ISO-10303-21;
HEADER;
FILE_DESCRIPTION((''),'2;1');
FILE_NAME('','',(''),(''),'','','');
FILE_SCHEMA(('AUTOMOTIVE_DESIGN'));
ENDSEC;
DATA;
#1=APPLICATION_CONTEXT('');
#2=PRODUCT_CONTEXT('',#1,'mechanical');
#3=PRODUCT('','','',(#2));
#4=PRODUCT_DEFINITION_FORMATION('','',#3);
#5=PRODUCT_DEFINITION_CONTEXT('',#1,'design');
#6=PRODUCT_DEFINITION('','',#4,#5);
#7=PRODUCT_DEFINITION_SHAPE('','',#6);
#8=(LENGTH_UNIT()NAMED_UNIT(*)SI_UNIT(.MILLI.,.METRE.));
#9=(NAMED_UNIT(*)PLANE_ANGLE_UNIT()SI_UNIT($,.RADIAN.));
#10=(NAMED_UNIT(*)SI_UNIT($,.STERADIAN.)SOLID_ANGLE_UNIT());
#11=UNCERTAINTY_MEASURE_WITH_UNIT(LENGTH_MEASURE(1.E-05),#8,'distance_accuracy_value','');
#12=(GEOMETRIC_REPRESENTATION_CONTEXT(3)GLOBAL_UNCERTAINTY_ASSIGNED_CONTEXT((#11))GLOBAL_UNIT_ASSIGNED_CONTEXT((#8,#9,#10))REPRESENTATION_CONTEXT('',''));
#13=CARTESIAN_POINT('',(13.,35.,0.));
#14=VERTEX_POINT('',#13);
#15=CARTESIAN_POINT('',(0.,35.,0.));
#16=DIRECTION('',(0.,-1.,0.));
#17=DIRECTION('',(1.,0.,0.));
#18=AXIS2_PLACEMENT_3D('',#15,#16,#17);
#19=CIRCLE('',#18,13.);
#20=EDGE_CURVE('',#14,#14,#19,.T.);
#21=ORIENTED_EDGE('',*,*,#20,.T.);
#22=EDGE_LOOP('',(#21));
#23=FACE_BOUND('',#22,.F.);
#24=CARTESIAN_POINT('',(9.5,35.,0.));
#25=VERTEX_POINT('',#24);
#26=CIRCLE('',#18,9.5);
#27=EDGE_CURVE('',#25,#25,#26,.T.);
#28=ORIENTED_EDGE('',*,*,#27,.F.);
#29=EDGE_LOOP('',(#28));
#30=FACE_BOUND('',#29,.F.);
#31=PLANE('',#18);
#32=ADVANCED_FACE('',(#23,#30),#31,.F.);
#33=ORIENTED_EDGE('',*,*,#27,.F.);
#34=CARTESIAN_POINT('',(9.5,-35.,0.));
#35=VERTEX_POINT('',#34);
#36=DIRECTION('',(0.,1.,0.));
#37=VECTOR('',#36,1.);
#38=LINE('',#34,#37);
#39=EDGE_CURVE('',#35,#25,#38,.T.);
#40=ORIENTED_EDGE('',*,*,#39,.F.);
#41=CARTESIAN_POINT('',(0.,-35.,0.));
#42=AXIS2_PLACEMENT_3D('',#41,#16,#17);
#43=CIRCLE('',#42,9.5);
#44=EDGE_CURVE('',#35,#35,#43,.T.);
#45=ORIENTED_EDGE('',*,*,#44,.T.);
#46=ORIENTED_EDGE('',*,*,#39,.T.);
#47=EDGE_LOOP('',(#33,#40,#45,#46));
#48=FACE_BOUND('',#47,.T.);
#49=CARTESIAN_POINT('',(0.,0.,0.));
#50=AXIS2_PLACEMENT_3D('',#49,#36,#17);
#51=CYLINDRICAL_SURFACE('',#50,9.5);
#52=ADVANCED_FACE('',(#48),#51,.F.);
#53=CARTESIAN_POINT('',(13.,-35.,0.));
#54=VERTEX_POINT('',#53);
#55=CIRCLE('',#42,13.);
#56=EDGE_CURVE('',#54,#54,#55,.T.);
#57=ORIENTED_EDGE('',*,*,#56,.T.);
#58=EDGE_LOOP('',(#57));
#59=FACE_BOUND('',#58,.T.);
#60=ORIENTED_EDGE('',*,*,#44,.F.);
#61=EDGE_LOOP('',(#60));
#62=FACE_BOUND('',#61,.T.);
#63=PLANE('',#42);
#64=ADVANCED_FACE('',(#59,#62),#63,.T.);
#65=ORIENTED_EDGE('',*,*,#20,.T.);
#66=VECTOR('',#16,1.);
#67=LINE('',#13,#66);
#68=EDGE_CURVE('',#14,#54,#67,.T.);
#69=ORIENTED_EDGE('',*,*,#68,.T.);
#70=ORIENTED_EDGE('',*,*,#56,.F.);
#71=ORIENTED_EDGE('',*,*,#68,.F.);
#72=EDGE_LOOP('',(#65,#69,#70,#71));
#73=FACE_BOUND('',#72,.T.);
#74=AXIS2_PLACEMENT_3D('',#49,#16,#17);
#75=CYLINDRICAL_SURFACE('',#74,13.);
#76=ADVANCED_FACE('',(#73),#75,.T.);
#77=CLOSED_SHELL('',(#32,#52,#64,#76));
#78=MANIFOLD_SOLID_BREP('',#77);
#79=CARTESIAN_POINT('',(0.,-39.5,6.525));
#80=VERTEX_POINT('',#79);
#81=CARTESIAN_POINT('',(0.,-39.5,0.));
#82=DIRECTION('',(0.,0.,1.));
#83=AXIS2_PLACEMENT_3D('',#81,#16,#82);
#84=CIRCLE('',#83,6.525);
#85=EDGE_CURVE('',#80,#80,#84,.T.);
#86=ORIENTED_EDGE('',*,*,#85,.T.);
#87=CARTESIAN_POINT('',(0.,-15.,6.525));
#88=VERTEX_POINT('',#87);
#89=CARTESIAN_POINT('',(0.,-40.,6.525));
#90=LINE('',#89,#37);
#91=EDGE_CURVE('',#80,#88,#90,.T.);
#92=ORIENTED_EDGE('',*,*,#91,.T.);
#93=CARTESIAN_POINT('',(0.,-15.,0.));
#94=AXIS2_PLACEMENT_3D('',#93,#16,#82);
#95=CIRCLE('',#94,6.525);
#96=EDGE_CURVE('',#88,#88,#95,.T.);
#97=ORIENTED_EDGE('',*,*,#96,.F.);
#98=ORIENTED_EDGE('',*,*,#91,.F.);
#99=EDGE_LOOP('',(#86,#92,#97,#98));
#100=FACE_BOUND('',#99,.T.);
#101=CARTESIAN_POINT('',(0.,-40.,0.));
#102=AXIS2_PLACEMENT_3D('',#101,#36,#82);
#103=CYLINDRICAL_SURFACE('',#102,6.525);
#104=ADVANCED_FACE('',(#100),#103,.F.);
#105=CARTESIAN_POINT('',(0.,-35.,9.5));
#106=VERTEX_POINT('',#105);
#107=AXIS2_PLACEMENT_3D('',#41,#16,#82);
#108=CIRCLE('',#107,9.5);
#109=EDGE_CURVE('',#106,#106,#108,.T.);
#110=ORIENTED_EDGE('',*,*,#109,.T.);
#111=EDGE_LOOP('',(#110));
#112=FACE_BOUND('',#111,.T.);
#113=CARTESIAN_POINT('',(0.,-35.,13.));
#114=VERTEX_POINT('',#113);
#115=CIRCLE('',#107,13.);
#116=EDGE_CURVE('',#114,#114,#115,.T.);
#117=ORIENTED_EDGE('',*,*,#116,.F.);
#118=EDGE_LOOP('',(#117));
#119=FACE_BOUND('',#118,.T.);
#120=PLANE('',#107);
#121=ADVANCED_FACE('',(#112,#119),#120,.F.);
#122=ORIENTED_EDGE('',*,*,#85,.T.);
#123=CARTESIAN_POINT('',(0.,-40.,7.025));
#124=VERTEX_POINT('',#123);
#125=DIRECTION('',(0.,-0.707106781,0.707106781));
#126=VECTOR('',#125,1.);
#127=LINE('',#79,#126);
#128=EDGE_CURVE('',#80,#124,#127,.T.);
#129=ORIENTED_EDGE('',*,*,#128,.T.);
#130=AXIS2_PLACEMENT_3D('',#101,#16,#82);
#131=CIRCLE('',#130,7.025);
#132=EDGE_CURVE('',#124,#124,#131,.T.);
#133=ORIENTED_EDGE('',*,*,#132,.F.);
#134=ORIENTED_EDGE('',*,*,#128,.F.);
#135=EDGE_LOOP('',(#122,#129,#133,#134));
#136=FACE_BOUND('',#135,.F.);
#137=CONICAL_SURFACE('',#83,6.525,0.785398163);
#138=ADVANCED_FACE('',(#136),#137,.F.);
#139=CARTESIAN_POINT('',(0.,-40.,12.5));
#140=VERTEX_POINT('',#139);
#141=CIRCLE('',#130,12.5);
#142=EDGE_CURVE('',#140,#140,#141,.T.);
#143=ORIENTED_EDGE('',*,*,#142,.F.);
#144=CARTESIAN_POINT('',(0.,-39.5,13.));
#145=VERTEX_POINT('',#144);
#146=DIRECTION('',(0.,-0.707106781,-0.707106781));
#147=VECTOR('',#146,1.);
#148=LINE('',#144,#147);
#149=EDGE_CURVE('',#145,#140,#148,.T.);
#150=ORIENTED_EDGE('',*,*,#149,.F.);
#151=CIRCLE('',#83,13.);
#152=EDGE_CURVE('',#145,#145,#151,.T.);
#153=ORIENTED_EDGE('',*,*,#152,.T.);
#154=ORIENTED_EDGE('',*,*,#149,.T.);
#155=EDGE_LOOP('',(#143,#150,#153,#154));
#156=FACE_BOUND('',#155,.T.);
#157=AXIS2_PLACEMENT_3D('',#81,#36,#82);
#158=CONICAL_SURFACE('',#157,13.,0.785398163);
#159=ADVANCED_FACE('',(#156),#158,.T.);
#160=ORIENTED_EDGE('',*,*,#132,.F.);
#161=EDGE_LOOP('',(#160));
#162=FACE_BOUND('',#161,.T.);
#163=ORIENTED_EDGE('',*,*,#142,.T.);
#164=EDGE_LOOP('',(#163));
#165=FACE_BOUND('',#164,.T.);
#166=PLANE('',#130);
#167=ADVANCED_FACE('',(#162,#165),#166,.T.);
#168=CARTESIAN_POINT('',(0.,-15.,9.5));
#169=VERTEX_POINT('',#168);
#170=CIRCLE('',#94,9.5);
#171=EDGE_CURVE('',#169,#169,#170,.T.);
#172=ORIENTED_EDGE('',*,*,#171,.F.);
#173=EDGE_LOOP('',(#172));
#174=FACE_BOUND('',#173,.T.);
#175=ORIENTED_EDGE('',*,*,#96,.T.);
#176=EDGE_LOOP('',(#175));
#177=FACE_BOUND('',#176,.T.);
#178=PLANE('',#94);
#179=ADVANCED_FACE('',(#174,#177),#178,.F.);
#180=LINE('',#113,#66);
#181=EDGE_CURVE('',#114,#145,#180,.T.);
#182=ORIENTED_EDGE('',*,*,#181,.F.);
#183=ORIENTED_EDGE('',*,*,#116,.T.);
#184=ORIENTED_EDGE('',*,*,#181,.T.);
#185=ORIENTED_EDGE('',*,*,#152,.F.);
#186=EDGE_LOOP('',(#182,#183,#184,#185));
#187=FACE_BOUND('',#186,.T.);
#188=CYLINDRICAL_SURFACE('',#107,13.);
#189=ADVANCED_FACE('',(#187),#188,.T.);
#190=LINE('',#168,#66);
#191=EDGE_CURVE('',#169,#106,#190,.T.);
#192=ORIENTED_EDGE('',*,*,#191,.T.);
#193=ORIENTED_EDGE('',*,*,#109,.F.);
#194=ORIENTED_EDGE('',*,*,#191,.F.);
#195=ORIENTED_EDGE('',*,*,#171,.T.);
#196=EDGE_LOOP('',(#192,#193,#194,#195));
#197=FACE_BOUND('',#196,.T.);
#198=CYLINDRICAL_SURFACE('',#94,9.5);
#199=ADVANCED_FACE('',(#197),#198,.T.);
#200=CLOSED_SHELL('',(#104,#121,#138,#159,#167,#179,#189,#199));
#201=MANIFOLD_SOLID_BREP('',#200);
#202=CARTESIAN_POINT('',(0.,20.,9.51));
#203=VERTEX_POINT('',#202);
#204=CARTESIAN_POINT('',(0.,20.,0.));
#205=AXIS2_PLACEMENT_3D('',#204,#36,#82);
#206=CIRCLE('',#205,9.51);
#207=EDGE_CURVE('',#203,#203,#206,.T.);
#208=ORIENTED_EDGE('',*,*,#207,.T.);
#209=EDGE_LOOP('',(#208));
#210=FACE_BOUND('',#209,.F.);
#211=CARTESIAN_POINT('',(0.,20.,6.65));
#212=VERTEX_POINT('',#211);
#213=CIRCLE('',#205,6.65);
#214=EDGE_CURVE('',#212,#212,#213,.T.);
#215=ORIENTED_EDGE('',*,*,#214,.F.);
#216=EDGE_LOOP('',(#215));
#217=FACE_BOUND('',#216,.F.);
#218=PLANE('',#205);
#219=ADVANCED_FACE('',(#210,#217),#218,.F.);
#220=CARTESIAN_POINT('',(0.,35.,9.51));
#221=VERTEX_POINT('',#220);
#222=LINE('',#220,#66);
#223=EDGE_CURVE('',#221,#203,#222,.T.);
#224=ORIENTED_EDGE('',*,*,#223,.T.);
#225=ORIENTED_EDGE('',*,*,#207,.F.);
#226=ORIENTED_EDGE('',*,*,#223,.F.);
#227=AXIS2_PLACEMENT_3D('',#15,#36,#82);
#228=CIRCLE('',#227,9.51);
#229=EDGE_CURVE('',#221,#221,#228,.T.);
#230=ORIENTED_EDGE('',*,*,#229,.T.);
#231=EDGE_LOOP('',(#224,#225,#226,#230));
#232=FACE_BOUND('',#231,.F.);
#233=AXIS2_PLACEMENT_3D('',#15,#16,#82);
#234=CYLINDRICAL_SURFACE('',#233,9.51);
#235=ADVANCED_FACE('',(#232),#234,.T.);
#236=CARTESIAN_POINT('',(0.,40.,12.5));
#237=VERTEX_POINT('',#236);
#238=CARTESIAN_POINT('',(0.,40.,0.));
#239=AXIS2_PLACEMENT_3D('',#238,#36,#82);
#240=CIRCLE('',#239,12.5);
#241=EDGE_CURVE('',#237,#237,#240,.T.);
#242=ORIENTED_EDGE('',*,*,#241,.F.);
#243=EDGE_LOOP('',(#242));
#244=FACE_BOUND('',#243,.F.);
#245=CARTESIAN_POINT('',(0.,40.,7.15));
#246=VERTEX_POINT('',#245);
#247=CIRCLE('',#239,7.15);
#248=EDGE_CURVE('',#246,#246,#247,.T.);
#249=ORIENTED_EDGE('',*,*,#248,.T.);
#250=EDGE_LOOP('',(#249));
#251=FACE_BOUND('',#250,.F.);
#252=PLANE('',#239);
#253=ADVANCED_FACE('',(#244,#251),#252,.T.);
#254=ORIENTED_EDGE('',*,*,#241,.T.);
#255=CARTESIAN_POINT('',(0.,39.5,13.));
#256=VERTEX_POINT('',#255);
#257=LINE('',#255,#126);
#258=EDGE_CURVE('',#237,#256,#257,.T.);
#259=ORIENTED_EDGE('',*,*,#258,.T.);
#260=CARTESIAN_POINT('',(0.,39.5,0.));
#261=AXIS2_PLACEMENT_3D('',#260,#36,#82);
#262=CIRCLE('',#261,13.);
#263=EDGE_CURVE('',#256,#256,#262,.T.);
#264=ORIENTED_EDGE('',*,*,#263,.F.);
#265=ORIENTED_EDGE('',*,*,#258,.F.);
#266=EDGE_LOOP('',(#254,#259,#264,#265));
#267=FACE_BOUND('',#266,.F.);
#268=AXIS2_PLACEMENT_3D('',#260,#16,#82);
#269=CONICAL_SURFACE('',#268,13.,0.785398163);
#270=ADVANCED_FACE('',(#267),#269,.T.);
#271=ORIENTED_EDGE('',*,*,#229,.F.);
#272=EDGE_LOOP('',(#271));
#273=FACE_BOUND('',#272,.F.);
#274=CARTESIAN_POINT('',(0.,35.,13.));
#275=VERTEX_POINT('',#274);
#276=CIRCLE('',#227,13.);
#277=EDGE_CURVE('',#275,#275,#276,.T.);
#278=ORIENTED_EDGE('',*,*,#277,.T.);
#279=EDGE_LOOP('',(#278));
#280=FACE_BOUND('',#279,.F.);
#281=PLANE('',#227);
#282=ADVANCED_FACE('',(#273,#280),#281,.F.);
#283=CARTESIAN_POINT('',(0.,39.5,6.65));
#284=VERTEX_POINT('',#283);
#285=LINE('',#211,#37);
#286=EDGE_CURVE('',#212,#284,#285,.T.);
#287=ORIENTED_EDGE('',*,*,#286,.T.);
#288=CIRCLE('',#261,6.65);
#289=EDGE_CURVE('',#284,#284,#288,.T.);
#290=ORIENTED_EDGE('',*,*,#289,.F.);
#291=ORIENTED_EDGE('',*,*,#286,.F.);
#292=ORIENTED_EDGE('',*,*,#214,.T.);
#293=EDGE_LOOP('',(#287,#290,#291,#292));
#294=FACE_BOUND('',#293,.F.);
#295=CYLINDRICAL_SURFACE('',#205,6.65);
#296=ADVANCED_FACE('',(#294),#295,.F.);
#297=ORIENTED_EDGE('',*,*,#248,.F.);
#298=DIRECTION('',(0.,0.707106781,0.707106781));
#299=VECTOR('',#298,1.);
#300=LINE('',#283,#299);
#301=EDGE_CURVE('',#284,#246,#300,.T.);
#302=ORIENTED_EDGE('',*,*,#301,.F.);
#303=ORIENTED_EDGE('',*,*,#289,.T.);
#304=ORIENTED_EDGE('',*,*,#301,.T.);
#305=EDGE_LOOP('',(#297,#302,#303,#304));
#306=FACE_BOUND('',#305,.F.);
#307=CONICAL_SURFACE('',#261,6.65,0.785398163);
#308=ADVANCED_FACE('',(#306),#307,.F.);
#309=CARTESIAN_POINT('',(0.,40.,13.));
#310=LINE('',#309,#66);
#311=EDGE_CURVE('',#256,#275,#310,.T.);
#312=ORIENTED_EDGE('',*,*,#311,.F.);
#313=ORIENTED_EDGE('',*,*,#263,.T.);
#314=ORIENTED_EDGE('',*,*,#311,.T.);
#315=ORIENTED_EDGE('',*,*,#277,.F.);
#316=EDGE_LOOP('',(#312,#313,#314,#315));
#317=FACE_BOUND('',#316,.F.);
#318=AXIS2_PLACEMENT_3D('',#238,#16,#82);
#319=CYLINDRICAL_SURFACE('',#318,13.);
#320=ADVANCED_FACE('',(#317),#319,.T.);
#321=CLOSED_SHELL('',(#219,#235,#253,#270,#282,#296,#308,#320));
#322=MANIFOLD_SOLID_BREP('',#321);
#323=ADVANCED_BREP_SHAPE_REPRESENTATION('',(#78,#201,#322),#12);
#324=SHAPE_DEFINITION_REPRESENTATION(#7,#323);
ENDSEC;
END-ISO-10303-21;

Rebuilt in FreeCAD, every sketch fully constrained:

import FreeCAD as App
import Part
import Sketcher
from FreeCAD import Vector
Q = App.Units.Quantity


def edges_at(feature, points):
    """Names of the edges that pass closest to the given points."""
    edges = feature.Shape.Edges
    near = lambda p: min(range(len(edges)), key=lambda i: edges[i].distToShape(Part.Vertex(*p))[0])
    return sorted({f"Edge{near(p) + 1}" for p in points})


def add_polygon(sketch, points):
    """Adds a closed chain of lines whose ends are joined by coincident constraints."""
    first, n = sketch.GeometryCount, len(points)
    for a, b in zip(points, points[1:] + points[:1]):
        sketch.addGeometry(Part.LineSegment(App.Vector(*a, 0), App.Vector(*b, 0)), False)
    for i in range(n):
        sketch.addConstraint(Sketcher.Constraint("Coincident", first + i, 2, first + (i + 1) % n, 1))

doc = App.newDocument("Part")
body = doc.addObject("PartDesign::Body", "Body")

# Sketch on XZ plane
sketch1 = body.newObject("Sketcher::SketchObject", "Sketch")
sketch1.AttachmentSupport = (doc.getObject("XZ_Plane"), [""])
sketch1.MapMode = "FlatFace"
sketch1.addGeometry([
    Part.Circle(Vector(0, 0, 0), Vector(0, 0, 1), 13),
    Part.Circle(Vector(0, 0, 0), Vector(0, 0, 1), 10),
], False)
sketch1.addConstraint([
    Sketcher.Constraint("Coincident", 0, 3, -1, 1),
    Sketcher.Constraint("Coincident", 1, 3, -1, 1),
    Sketcher.Constraint("Diameter", 0, Q("26 mm")),
    Sketcher.Constraint("Diameter", 1, Q("19 mm")),
])
pad1 = body.newObject("PartDesign::Pad", "Pad")
pad1.Profile = sketch1
pad1.Length = 70
pad1.Midplane = True
body2 = doc.addObject("PartDesign::Body", "Body001")

# Sketch on YZ plane
sketch2 = body2.newObject("Sketcher::SketchObject", "Sketch001")
sketch2.AttachmentSupport = (doc.getObject("YZ_Plane001"), [""])
sketch2.MapMode = "FlatFace"
add_polygon(sketch2, [(-40, 6.5), (-15, 6.5), (-15, 9.5), (-35, 9.5), (-35, 13), (-40, 13)])  # lines 0-5
sketch2.addConstraint([
    Sketcher.Constraint("Horizontal", 0),
    Sketcher.Constraint("Vertical", 1),
    Sketcher.Constraint("Horizontal", 2),
    Sketcher.Constraint("Vertical", 3),
    Sketcher.Constraint("Horizontal", 4),
    Sketcher.Constraint("Vertical", 5),
    Sketcher.Constraint("DistanceX", 0, 1, 0, 2, Q("25 mm")),
    Sketcher.Constraint("DistanceX", 2, 2, 2, 1, Q("20 mm")),
    Sketcher.Constraint("DistanceY", 3, 1, 3, 2, Q("3.5 mm")),
    Sketcher.Constraint("DistanceX", 0, 2, -1, 1, Q("15 mm")),
    Sketcher.Constraint("DistanceY", -1, 1, 3, 2, Q("13 mm")),
    Sketcher.Constraint("DistanceY", 1, 1, 1, 2, Q("2.975 mm")),
])
revolution = body2.newObject("PartDesign::Revolution", "Revolution")
revolution.Profile = sketch2
revolution.ReferenceAxis = (sketch2, ["H_Axis"])
revolution.Angle = 360
doc.recompute()

chamfer = body2.newObject("PartDesign::Chamfer", "Chamfer")
chamfer.Base = (revolution, edges_at(revolution, [(0, -40, -13), (0, -40, -6.525)]))
chamfer.Size = 0.5
body3 = doc.addObject("PartDesign::Body", "Body002")

# Sketch on YZ plane
sketch3 = body3.newObject("Sketcher::SketchObject", "Sketch002")
sketch3.AttachmentSupport = (doc.getObject("YZ_Plane002"), [""])
sketch3.MapMode = "FlatFace"
add_polygon(sketch3, [(35, 9.5), (20, 9.5), (20, 6.7), (40, 6.7), (40, 13), (35, 13)])  # lines 0-5
sketch3.addConstraint([
    Sketcher.Constraint("Horizontal", 0),
    Sketcher.Constraint("Vertical", 1),
    Sketcher.Constraint("Horizontal", 2),
    Sketcher.Constraint("Vertical", 3),
    Sketcher.Constraint("Horizontal", 4),
    Sketcher.Constraint("Vertical", 5),
    Sketcher.Constraint("DistanceX", 0, 2, 0, 1, Q("15 mm")),
    Sketcher.Constraint("DistanceX", 2, 1, 2, 2, Q("20 mm")),
    Sketcher.Constraint("DistanceX", -1, 1, 0, 2, Q("20 mm")),
    Sketcher.Constraint("DistanceY", -1, 1, 3, 2, Q("13 mm")),
    Sketcher.Constraint("DistanceY", 1, 2, 1, 1, Q("2.86 mm")),
    Sketcher.Constraint("DistanceY", 3, 1, 3, 2, Q("6.35 mm")),
])
revolution2 = body3.newObject("PartDesign::Revolution", "Revolution001")
revolution2.Profile = sketch3
revolution2.ReferenceAxis = (sketch3, ["H_Axis"])
revolution2.Angle = 360
doc.recompute()

chamfer2 = body3.newObject("PartDesign::Chamfer", "Chamfer001")
chamfer2.Base = (revolution2, edges_at(revolution2, [(0, 40, -6.65), (0, 40, -13)]))
chamfer2.Size = 0.5

doc.recompute()
